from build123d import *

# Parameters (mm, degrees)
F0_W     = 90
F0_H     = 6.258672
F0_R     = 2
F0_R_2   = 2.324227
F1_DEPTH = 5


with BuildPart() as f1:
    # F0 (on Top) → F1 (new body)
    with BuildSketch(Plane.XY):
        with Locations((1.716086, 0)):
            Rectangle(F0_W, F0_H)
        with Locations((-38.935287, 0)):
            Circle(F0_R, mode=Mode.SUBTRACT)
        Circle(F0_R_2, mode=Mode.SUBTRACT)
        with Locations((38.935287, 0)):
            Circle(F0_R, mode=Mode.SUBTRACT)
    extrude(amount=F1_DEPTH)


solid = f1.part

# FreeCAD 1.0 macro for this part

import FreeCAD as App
import Part
import Sketcher

doc = App.newDocument("Part")
body = doc.addObject("PartDesign::Body", "Body")

sketch1 = body.newObject("Sketcher::SketchObject", "Sketch")
sketch1.AttachmentSupport = (doc.getObject("XY_Plane"), [""])
sketch1.MapMode = "FlatFace"
sketch1.addGeometry([
    Part.LineSegment(App.Vector(-43.283914, 3.129336, 0), App.Vector(-43.283914, -3.129336, 0)),
    Part.LineSegment(App.Vector(-43.283914, -3.129336, 0), App.Vector(46.716086, -3.129336, 0)),
    Part.LineSegment(App.Vector(46.716086, -3.129336, 0), App.Vector(46.716086, 3.129336, 0)),
    Part.LineSegment(App.Vector(46.716086, 3.129336, 0), App.Vector(-43.283914, 3.129336, 0)),
    Part.Circle(App.Vector(-38.935287, 0, 0), App.Vector(0, 0, 1), 2),
    Part.Circle(App.Vector(0, 0, 0), App.Vector(0, 0, 1), 2.324227),
    Part.Circle(App.Vector(38.935287, 0, 0), App.Vector(0, 0, 1), 2),
], False)
sketch1.addConstraint([
    Sketcher.Constraint("Coincident", 0, 2, 1, 1),
    Sketcher.Constraint("Coincident", 1, 2, 2, 1),
    Sketcher.Constraint("Coincident", 2, 2, 3, 1),
    Sketcher.Constraint("Coincident", 3, 2, 0, 1),
    Sketcher.Constraint("Vertical", 0),
    Sketcher.Constraint("Horizontal", 1),
    Sketcher.Constraint("Vertical", 2),
    Sketcher.Constraint("Horizontal", 3),
    Sketcher.Constraint("Coincident", 5, 3, -1, 1),
    Sketcher.Constraint("Equal", 4, 6),
    Sketcher.Constraint("Symmetric", 4, 3, 6, 3, -1, 1),
    Sketcher.Constraint("PointOnObject", 4, 3, -1),
    Sketcher.Constraint("Diameter", 4, 4.0),
    Sketcher.Constraint("DistanceX", 1, 1, 1, 2, 90.0),
    Sketcher.Constraint("Diameter", 5, 4.648454),
    Sketcher.Constraint("DistanceY", 0, 2, 0, 1, 6.258672),
    Sketcher.Constraint("DistanceX", 0, 2, 6, 3, 82.219201),
    Sketcher.Constraint("DistanceX", 4, 3, -1, 1, 38.935287),
    Sketcher.Constraint("DistanceY", 0, 2, -1, 1, 3.129336),
])
pad1 = body.newObject("PartDesign::Pad", "Pad")
pad1.Profile = sketch1
pad1.Length = 5

doc.recompute()
